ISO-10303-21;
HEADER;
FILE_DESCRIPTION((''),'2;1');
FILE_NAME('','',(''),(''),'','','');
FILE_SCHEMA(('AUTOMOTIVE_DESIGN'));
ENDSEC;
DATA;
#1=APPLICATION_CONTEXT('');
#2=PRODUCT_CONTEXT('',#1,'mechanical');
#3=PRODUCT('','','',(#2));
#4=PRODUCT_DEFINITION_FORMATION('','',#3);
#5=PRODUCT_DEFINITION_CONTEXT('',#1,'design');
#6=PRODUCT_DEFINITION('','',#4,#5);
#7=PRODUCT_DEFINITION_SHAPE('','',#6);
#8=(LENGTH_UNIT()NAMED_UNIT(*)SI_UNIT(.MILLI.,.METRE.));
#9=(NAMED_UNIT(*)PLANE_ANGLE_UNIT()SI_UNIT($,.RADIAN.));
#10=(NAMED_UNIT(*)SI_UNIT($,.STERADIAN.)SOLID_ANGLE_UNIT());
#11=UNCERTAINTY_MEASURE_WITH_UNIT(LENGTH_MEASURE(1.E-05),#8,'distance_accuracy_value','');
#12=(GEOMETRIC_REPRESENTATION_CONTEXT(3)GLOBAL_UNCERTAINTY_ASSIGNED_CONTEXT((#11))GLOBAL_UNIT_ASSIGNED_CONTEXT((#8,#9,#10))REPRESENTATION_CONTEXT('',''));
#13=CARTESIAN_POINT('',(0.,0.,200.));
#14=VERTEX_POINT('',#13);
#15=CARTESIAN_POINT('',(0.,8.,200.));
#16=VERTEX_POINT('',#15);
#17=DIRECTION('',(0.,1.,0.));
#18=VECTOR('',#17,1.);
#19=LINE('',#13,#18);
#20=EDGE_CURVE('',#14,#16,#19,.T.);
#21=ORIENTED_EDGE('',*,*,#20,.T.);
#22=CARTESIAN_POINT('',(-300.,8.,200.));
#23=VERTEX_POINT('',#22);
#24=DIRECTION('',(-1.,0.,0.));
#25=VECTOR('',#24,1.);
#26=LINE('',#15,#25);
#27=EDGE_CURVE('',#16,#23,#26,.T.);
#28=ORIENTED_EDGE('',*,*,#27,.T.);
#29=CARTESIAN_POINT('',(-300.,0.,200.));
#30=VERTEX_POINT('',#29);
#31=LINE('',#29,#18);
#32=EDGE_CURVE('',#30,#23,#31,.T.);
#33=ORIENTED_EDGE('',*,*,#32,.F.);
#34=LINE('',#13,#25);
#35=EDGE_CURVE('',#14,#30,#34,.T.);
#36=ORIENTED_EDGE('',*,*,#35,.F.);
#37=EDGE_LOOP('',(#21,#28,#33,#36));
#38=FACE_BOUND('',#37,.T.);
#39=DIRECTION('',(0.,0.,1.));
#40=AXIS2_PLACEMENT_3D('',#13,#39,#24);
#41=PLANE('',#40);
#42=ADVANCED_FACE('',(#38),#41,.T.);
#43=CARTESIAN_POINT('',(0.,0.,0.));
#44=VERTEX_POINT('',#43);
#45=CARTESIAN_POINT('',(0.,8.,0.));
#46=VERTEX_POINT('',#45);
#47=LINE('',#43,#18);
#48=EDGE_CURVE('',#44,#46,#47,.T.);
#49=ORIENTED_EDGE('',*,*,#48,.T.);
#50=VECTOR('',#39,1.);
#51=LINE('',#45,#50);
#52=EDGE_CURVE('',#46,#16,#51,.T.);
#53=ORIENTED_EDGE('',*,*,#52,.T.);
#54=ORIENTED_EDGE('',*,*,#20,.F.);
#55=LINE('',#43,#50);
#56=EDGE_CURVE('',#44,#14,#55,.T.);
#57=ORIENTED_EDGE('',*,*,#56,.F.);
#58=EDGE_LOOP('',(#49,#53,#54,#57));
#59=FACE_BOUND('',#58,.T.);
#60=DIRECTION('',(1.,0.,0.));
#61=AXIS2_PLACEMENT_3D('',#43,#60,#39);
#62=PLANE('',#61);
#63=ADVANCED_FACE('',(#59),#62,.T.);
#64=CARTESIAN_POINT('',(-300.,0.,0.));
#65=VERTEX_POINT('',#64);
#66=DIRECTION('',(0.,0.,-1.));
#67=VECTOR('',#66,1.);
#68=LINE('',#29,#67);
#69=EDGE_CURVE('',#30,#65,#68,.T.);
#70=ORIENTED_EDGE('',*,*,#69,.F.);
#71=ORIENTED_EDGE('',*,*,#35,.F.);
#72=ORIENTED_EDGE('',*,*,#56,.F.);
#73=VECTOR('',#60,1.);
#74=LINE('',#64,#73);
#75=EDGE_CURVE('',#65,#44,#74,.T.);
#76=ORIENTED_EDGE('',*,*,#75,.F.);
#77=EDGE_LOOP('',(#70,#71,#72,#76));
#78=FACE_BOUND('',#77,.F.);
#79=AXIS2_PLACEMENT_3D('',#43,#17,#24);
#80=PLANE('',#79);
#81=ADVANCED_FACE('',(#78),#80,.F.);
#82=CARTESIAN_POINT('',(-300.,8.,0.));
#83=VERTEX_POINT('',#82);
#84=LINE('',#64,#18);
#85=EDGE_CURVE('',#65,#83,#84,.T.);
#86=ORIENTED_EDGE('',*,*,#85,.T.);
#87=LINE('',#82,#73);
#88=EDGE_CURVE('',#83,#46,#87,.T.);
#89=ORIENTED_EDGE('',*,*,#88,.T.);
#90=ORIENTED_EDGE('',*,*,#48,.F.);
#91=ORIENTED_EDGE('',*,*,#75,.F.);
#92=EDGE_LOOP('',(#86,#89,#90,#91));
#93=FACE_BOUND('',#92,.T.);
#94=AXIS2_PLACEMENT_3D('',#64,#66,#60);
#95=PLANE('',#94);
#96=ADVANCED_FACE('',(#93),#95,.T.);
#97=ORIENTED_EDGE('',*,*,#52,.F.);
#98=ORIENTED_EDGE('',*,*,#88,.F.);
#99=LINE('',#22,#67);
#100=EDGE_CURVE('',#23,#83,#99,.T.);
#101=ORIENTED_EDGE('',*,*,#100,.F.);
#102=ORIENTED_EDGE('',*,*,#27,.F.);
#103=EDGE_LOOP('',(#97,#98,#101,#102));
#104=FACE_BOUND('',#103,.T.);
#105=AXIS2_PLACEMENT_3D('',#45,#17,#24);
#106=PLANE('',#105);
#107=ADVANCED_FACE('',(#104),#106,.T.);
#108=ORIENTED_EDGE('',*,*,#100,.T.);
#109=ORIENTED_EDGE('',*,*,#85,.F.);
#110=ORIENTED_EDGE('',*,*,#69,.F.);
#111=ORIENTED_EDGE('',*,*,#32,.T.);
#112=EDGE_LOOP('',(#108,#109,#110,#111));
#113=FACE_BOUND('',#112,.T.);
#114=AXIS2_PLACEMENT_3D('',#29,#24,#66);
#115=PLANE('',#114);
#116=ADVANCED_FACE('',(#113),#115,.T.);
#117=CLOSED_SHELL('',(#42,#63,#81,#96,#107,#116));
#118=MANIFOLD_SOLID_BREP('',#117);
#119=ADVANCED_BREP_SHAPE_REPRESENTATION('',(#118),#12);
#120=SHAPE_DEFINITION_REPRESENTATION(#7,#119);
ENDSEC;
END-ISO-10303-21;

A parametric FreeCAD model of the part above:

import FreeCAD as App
import Part
import Sketcher

V = App.Vector
Q = App.Units.Quantity

doc = App.newDocument("Part")
params = doc.addObject("Spreadsheet::Sheet", "Params")
for row, (alias, value) in enumerate([
    ("sketch1_width", "300 mm"),
    ("sketch1_height", "200 mm"),
    ("pad1_length", "8 mm"),
], start=1):
    params.set(f"A{row}", alias)
    params.set(f"B{row}", "=" + value)
    params.setAlias(f"B{row}", alias)

body = doc.addObject("PartDesign::Body", "Body")

sketch1 = body.newObject("Sketcher::SketchObject", "Sketch")
sketch1.AttachmentSupport = (doc.getObject("XZ_Plane"), [""])
sketch1.MapMode = "FlatFace"
sketch1.addGeometry([
    Part.LineSegment(V(0, 200, 0), V(0, 0, 0)),
    Part.LineSegment(V(0, 0, 0), V(-300, 0, 0)),
    Part.LineSegment(V(-300, 0, 0), V(-300, 200, 0)),
    Part.LineSegment(V(-300, 200, 0), V(0, 200, 0)),
], False)
sketch1.addConstraint([
    Sketcher.Constraint("Coincident", 0, 2, 1, 1),
    Sketcher.Constraint("Coincident", 1, 2, 2, 1),
    Sketcher.Constraint("Coincident", 2, 2, 3, 1),
    Sketcher.Constraint("Coincident", 3, 2, 0, 1),
    Sketcher.Constraint("Vertical", 0),
    Sketcher.Constraint("Horizontal", 1),
    Sketcher.Constraint("Vertical", 2),
    Sketcher.Constraint("Horizontal", 3),
    Sketcher.Constraint("Coincident", 0, 2, -1, 1),
    Sketcher.Constraint("DistanceX", 1, 2, 1, 1, Q("300 mm")),
    Sketcher.Constraint("DistanceY", 0, 2, 0, 1, Q("200 mm")),
])
sketch1.setExpression("Constraints[9]", "Params.sketch1_width")
sketch1.setExpression("Constraints[10]", "Params.sketch1_height")
pad1 = body.newObject("PartDesign::Pad", "Pad")
pad1.Profile = sketch1
pad1.setExpression("Length", "Params.pad1_length")
pad1.Reversed = True

doc.recompute()
